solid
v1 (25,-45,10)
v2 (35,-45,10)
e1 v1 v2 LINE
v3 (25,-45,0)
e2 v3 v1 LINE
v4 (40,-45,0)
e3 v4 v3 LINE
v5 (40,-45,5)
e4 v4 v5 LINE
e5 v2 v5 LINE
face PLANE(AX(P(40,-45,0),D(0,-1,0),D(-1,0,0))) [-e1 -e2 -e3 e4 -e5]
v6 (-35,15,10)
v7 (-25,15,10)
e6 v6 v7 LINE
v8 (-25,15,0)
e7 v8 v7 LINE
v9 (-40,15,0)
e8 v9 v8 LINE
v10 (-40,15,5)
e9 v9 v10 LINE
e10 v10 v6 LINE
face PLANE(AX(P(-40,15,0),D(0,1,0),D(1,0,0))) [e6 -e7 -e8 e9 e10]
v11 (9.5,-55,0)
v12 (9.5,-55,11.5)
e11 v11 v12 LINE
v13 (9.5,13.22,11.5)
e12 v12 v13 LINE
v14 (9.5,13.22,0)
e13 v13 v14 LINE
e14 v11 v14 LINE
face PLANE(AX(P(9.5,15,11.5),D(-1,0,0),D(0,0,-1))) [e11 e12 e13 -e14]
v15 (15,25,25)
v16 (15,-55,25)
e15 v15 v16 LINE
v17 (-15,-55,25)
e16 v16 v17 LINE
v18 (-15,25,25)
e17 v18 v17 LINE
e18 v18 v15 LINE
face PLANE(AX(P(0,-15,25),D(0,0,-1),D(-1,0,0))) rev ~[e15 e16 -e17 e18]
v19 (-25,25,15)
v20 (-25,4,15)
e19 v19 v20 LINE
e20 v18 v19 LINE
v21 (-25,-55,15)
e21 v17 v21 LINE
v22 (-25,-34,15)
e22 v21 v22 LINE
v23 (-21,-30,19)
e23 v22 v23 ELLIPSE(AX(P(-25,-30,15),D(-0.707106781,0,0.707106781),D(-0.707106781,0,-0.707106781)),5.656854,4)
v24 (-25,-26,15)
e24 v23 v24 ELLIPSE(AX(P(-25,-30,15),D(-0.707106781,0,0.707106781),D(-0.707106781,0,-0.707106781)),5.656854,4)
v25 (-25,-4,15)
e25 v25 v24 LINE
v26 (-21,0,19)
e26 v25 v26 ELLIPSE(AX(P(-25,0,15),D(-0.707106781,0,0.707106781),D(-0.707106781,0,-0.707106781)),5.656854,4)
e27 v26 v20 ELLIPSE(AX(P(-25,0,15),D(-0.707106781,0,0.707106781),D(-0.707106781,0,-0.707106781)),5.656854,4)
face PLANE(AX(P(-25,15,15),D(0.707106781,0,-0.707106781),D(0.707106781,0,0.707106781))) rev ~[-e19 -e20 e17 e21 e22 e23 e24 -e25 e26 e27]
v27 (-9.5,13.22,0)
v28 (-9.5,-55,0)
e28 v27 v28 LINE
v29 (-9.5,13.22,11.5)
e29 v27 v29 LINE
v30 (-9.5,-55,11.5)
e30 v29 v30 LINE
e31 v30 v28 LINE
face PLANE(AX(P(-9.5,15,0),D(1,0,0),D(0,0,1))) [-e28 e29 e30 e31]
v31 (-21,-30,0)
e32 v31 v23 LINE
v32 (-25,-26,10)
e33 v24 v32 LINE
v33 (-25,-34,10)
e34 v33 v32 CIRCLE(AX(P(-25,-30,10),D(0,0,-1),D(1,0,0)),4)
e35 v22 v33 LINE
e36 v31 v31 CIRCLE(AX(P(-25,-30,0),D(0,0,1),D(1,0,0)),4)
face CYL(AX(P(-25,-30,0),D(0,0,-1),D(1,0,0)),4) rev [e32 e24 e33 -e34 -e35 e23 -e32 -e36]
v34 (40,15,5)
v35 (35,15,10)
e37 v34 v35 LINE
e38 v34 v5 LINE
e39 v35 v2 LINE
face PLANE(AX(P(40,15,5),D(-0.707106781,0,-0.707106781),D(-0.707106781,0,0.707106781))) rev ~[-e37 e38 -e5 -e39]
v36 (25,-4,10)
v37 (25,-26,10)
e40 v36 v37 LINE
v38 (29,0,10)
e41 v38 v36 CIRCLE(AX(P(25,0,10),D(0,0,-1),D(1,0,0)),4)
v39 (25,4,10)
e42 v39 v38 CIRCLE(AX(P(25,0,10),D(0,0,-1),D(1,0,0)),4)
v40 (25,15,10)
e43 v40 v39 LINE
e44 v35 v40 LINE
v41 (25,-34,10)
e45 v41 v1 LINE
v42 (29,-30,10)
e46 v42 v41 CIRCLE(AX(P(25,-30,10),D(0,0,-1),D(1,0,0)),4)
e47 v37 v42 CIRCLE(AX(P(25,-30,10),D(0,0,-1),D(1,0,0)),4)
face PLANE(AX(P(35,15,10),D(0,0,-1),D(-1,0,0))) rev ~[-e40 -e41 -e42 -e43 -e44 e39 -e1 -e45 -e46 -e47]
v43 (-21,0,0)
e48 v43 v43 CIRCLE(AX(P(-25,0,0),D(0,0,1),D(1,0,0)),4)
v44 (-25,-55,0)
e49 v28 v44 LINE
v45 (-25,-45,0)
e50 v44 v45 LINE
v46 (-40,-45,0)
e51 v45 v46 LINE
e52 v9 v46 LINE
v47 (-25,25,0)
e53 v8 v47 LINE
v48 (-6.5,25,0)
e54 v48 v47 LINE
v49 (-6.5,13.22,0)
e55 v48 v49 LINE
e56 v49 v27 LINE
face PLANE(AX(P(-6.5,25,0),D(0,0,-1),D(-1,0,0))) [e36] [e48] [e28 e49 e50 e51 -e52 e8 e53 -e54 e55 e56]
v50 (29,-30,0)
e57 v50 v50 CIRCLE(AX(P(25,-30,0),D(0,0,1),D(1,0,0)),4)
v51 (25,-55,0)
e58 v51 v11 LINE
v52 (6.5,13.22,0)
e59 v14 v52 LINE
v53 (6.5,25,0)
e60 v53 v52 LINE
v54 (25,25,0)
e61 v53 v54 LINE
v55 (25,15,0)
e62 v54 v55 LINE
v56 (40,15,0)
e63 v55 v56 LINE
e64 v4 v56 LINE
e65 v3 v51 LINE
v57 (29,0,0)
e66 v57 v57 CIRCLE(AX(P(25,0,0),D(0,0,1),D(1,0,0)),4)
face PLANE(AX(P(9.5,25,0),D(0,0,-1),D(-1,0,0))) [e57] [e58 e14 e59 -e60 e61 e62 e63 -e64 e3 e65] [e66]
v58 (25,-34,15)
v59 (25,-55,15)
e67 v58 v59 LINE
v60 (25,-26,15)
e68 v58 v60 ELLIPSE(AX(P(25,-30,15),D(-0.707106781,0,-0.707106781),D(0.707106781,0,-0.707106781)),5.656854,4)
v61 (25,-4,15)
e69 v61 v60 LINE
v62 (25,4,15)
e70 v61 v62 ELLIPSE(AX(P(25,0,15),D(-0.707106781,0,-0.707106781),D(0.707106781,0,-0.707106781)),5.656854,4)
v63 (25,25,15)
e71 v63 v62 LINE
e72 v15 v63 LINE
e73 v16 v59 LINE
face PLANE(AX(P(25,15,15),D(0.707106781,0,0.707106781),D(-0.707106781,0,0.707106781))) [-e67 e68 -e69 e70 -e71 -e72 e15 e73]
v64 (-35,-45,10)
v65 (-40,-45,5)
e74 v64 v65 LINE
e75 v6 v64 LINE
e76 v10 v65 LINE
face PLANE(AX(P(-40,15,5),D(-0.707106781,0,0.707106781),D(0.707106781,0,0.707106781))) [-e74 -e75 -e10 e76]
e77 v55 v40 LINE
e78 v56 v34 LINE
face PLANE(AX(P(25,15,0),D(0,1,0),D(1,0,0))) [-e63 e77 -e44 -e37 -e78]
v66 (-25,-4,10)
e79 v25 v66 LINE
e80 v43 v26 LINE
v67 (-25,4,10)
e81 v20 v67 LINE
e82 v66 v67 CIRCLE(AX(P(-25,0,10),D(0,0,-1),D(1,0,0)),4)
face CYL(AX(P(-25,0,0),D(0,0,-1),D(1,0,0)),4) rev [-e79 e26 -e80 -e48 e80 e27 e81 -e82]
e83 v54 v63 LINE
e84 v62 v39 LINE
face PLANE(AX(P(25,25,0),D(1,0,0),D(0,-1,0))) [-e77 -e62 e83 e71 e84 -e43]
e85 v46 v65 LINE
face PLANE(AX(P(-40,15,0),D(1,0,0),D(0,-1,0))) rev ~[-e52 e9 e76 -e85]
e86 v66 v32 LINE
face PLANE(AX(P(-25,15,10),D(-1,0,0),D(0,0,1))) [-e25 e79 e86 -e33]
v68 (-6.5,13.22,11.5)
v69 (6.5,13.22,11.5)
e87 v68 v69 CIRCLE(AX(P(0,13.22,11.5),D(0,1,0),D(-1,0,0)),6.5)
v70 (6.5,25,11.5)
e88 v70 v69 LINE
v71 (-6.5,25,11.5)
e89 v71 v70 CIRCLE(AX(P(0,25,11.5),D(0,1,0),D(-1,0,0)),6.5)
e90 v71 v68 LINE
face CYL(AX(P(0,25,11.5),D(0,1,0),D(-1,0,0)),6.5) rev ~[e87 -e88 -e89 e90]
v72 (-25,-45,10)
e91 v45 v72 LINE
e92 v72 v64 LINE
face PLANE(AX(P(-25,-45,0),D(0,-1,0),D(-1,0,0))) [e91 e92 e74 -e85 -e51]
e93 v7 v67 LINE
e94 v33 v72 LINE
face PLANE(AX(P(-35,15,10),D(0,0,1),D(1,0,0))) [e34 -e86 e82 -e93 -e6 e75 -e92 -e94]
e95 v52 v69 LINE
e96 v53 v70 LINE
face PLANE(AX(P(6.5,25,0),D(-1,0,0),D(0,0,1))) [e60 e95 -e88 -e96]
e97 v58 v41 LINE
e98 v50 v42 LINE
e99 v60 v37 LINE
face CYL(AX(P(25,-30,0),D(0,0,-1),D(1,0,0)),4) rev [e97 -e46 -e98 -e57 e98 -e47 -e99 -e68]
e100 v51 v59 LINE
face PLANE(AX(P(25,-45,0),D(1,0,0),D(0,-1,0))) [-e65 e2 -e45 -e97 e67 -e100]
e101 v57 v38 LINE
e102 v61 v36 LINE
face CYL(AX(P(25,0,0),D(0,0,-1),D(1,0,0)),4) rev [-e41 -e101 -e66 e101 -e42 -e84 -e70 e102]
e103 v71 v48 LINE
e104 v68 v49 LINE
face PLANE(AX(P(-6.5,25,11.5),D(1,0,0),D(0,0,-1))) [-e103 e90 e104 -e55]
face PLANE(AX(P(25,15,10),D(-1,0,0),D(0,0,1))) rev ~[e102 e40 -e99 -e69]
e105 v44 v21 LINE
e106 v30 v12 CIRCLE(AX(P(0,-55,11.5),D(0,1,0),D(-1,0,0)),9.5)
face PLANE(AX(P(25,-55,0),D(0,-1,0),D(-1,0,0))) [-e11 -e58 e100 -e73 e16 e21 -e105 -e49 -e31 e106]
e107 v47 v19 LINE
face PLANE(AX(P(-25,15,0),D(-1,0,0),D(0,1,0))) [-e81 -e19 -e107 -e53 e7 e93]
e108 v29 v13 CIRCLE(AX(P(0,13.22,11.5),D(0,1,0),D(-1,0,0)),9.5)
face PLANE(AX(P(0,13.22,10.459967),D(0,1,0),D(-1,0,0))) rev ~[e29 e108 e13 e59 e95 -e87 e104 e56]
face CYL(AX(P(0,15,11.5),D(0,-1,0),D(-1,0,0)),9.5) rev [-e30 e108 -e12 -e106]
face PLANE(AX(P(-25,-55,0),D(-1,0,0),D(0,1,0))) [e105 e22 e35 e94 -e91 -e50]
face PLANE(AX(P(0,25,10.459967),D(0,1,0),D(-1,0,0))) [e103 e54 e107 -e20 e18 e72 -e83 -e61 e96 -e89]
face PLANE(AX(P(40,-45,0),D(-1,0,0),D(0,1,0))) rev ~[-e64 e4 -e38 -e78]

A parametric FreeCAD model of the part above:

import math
import FreeCAD as App
import Part
import Sketcher

V = App.Vector

doc = App.newDocument("Part")
body = doc.addObject("PartDesign::Body", "Body")

sketch1 = body.newObject("Sketcher::SketchObject", "Sketch")
sketch1.AttachmentSupport = (doc.getObject("XY_Plane"), [""])
sketch1.MapMode = "FlatFace"
sketch1.addGeometry([
    Part.LineSegment(V(40, -45, 0), V(40, 15, 0)),
    Part.LineSegment(V(40, 15, 0), V(25, 15, 0)),
    Part.LineSegment(V(25, 15, 0), V(25, 25, 0)),
    Part.LineSegment(V(25, 25, 0), V(-25, 25, 0)),
    Part.LineSegment(V(-25, 25, 0), V(-25, 15, 0)),
    Part.LineSegment(V(-25, 15, 0), V(-40, 15, 0)),
    Part.LineSegment(V(-40, 15, 0), V(-40, -45, 0)),
    Part.LineSegment(V(-40, -45, 0), V(-25, -45, 0)),
    Part.LineSegment(V(-25, -45, 0), V(-25, -55, 0)),
    Part.LineSegment(V(-25, -55, 0), V(25, -55, 0)),
    Part.LineSegment(V(25, -55, 0), V(25, -45, 0)),
    Part.LineSegment(V(25, -45, 0), V(40, -45, 0)),
    Part.Circle(V(25, -30, 0), V(0, 0, 1), 4),
    Part.Circle(V(-25, -30, 0), V(0, 0, 1), 4),
    Part.Circle(V(25, 0, 0), V(0, 0, 1), 4),
    Part.Circle(V(-25, 0, 0), V(0, 0, 1), 4),
], False)
sketch1.addConstraint([
    Sketcher.Constraint("Coincident", 0, 2, 1, 1),
    Sketcher.Constraint("Coincident", 1, 2, 2, 1),
    Sketcher.Constraint("Coincident", 2, 2, 3, 1),
    Sketcher.Constraint("Coincident", 3, 2, 4, 1),
    Sketcher.Constraint("Coincident", 4, 2, 5, 1),
    Sketcher.Constraint("Coincident", 5, 2, 6, 1),
    Sketcher.Constraint("Coincident", 6, 2, 7, 1),
    Sketcher.Constraint("Coincident", 7, 2, 8, 1),
    Sketcher.Constraint("Coincident", 8, 2, 9, 1),
    Sketcher.Constraint("Coincident", 9, 2, 10, 1),
    Sketcher.Constraint("Coincident", 10, 2, 11, 1),
    Sketcher.Constraint("Coincident", 11, 2, 0, 1),
    Sketcher.Constraint("Vertical", 0),
    Sketcher.Constraint("Horizontal", 1),
    Sketcher.Constraint("Vertical", 2),
    Sketcher.Constraint("Horizontal", 3),
    Sketcher.Constraint("Vertical", 4),
    Sketcher.Constraint("Horizontal", 5),
    Sketcher.Constraint("Vertical", 6),
    Sketcher.Constraint("Horizontal", 7),
    Sketcher.Constraint("Vertical", 8),
    Sketcher.Constraint("Horizontal", 9),
    Sketcher.Constraint("Vertical", 10),
    Sketcher.Constraint("Horizontal", 11),
    Sketcher.Constraint("Equal", 12, 13),
    Sketcher.Constraint("Equal", 13, 14),
    Sketcher.Constraint("Equal", 14, 15),
    Sketcher.Constraint("Symmetric", 14, 3, 15, 3, -1, 1),
    Sketcher.Constraint("Symmetric", 12, 3, 13, 3, -2),
    Sketcher.Constraint("Symmetric", 1, 2, 4, 2, -2),
    Sketcher.Constraint("Symmetric", 7, 2, 10, 2, -2),
    Sketcher.Constraint("PointOnObject", 14, 3, -1),
    Sketcher.Constraint("Vertical", 12, 3, 14, 3),
    Sketcher.Constraint("Vertical", 14, 3, 1, 2),
    Sketcher.Constraint("Vertical", 4, 2, 7, 2),
    Sketcher.Constraint("Equal", 1, 5),
    Sketcher.Constraint("Equal", 4, 8),
    Sketcher.Constraint("Diameter", 12, 8.0),
    Sketcher.Constraint("DistanceX", 1, 2, 1, 1, 15.0),
    Sketcher.Constraint("DistanceX", 3, 2, 3, 1, 50.0),
    Sketcher.Constraint("DistanceY", 0, 1, 0, 2, 60.0),
    Sketcher.Constraint("DistanceY", 2, 1, 2, 2, 10.0),
    Sketcher.Constraint("DistanceY", 12, 3, -1, 1, 30.0),
    Sketcher.Constraint("DistanceY", -1, 1, 0, 2, 15.0),
])
pad1 = body.newObject("PartDesign::Pad", "Pad")
pad1.Profile = sketch1
pad1.Length = 25

sketch2 = body.newObject("Sketcher::SketchObject", "Sketch001")
sketch2.AttachmentSupport = (doc.getObject("XZ_Plane"), [""])
sketch2.MapMode = "FlatFace"
sketch2.AttachmentOffset = App.Placement(V(0, 0, -15), App.Rotation())
sketch2.addGeometry([
    Part.ArcOfCircle(Part.Circle(V(0, 11.5, 0), V(0, 0, 1), 9.5), math.radians(0), math.radians(180)),
    Part.LineSegment(V(9.5, 11.5, 0), V(9.5, 0, 0)),
    Part.LineSegment(V(9.5, 0, 0), V(-9.5, 0, 0)),
    Part.LineSegment(V(-9.5, 0, 0), V(-9.5, 11.5, 0)),
    Part.LineSegment(V(40, 5, 0), V(35, 10, 0)),
    Part.LineSegment(V(35, 10, 0), V(25, 10, 0)),
    Part.LineSegment(V(25, 10, 0), V(25, 15, 0)),
    Part.LineSegment(V(25, 15, 0), V(15, 25, 0)),
    Part.LineSegment(V(15, 25, 0), V(40, 25, 0)),
    Part.LineSegment(V(40, 25, 0), V(40, 5, 0)),
    Part.LineSegment(V(-35, 10, 0), V(-40, 5, 0)),
    Part.LineSegment(V(-40, 5, 0), V(-40, 25, 0)),
    Part.LineSegment(V(-40, 25, 0), V(-15, 25, 0)),
    Part.LineSegment(V(-15, 25, 0), V(-25, 15, 0)),
    Part.LineSegment(V(-25, 15, 0), V(-25, 10, 0)),
    Part.LineSegment(V(-25, 10, 0), V(-35, 10, 0)),
], False)
sketch2.addConstraint([
    Sketcher.Constraint("Tangent", 0, 1, 1, 1),
    Sketcher.Constraint("Coincident", 1, 2, 2, 1),
    Sketcher.Constraint("Coincident", 2, 2, 3, 1),
    Sketcher.Constraint("Tangent", 3, 2, 0, 2),
    Sketcher.Constraint("Coincident", 4, 2, 5, 1),
    Sketcher.Constraint("Coincident", 5, 2, 6, 1),
    Sketcher.Constraint("Coincident", 6, 2, 7, 1),
    Sketcher.Constraint("Coincident", 7, 2, 8, 1),
    Sketcher.Constraint("Coincident", 8, 2, 9, 1),
    Sketcher.Constraint("Coincident", 9, 2, 4, 1),
    Sketcher.Constraint("Coincident", 10, 2, 11, 1),
    Sketcher.Constraint("Coincident", 11, 2, 12, 1),
    Sketcher.Constraint("Coincident", 12, 2, 13, 1),
    Sketcher.Constraint("Coincident", 13, 2, 14, 1),
    Sketcher.Constraint("Coincident", 14, 2, 15, 1),
    Sketcher.Constraint("Coincident", 15, 2, 10, 1),
    Sketcher.Constraint("Vertical", 1),
    Sketcher.Constraint("Horizontal", 2),
    Sketcher.Constraint("Vertical", 3),
    Sketcher.Constraint("Horizontal", 5),
    Sketcher.Constraint("Vertical", 6),
    Sketcher.Constraint("Horizontal", 8),
    Sketcher.Constraint("Vertical", 9),
    Sketcher.Constraint("Vertical", 11),
    Sketcher.Constraint("Horizontal", 12),
    Sketcher.Constraint("Vertical", 14),
    Sketcher.Constraint("Horizontal", 15),
    Sketcher.Constraint("Symmetric", 1, 2, 2, 2, -1, 1),
    Sketcher.Constraint("Symmetric", 9, 2, 10, 2, -2),
    Sketcher.Constraint("Symmetric", 7, 2, 12, 2, -2),
    Sketcher.Constraint("Symmetric", 6, 2, 13, 2, -2),
    Sketcher.Constraint("Symmetric", 4, 2, 15, 2, -2),
    Sketcher.Constraint("Parallel", 4, 7),
    Sketcher.Constraint("Perpendicular", 7, 10),
    Sketcher.Constraint("Radius", 0, 9.5),
    Sketcher.Constraint("DistanceX", 5, 2, 5, 1, 10.0),
    Sketcher.Constraint("DistanceX", 8, 1, 8, 2, 25.0),
    Sketcher.Constraint("DistanceY", 6, 1, 6, 2, 5.0),
    Sketcher.Constraint("DistanceY", 1, 2, 1, 1, 11.5),
    Sketcher.Constraint("DistanceX", -1, 1, 4, 2, 35.0),
    Sketcher.Constraint("DistanceY", -1, 1, 4, 2, 10.0),
    Sketcher.Constraint("DistanceX", -1, 1, 7, 2, 15.0),
])
pocket1 = body.newObject("PartDesign::Pocket", "Pocket")
pocket1.Profile = sketch2
pocket1.Type = "ThroughAll"
pocket1.Midplane = True

sketch3 = body.newObject("Sketcher::SketchObject", "Sketch002")
sketch3.AttachmentSupport = (doc.getObject("XZ_Plane"), [""])
sketch3.MapMode = "FlatFace"
sketch3.AttachmentOffset = App.Placement(V(0, 0, -25), App.Rotation())
sketch3.addGeometry([
    Part.LineSegment(V(9.5, 0, 0), V(6.5, 0, 0)),
    Part.LineSegment(V(6.5, 0, 0), V(6.5, 11.5, 0)),
    Part.ArcOfCircle(Part.Circle(V(0, 11.5, 0), V(0, 0, 1), 6.5), math.radians(0), math.radians(180)),
    Part.LineSegment(V(-6.5, 11.5, 0), V(-6.5, 0, 0)),
    Part.LineSegment(V(-6.5, 0, 0), V(-9.5, 0, 0)),
    Part.LineSegment(V(-9.5, 0, 0), V(-9.5, 11.5, 0)),
    Part.ArcOfCircle(Part.Circle(V(0, 11.5, 0), V(0, 0, 1), 9.5), math.radians(0), math.radians(180)),
    Part.LineSegment(V(9.5, 11.5, 0), V(9.5, 0, 0)),
], False)
sketch3.addConstraint([
    Sketcher.Constraint("Coincident", 0, 2, 1, 1),
    Sketcher.Constraint("Tangent", 1, 2, 2, 1),
    Sketcher.Constraint("Tangent", 2, 2, 3, 1),
    Sketcher.Constraint("Coincident", 3, 2, 4, 1),
    Sketcher.Constraint("Coincident", 4, 2, 5, 1),
    Sketcher.Constraint("Tangent", 5, 2, 6, 2),
    Sketcher.Constraint("Tangent", 6, 1, 7, 1),
    Sketcher.Constraint("Coincident", 7, 2, 0, 1),
    Sketcher.Constraint("Horizontal", 0),
    Sketcher.Constraint("Vertical", 1),
    Sketcher.Constraint("Vertical", 3),
    Sketcher.Constraint("Horizontal", 4),
    Sketcher.Constraint("Vertical", 5),
    Sketcher.Constraint("Vertical", 7),
    Sketcher.Constraint("Coincident", 6, 3, 2, 3),
    Sketcher.Constraint("Symmetric", 0, 2, 3, 2, -1, 1),
    Sketcher.Constraint("PointOnObject", 0, 2, -1),
    Sketcher.Constraint("Radius", 2, 6.5),
    Sketcher.Constraint("Radius", 6, 9.5),
    Sketcher.Constraint("DistanceY", 1, 1, 1, 2, 11.5),
])
pad2 = body.newObject("PartDesign::Pad", "Pad001")
pad2.Profile = sketch3
pad2.Length = 11.78

doc.recompute()
